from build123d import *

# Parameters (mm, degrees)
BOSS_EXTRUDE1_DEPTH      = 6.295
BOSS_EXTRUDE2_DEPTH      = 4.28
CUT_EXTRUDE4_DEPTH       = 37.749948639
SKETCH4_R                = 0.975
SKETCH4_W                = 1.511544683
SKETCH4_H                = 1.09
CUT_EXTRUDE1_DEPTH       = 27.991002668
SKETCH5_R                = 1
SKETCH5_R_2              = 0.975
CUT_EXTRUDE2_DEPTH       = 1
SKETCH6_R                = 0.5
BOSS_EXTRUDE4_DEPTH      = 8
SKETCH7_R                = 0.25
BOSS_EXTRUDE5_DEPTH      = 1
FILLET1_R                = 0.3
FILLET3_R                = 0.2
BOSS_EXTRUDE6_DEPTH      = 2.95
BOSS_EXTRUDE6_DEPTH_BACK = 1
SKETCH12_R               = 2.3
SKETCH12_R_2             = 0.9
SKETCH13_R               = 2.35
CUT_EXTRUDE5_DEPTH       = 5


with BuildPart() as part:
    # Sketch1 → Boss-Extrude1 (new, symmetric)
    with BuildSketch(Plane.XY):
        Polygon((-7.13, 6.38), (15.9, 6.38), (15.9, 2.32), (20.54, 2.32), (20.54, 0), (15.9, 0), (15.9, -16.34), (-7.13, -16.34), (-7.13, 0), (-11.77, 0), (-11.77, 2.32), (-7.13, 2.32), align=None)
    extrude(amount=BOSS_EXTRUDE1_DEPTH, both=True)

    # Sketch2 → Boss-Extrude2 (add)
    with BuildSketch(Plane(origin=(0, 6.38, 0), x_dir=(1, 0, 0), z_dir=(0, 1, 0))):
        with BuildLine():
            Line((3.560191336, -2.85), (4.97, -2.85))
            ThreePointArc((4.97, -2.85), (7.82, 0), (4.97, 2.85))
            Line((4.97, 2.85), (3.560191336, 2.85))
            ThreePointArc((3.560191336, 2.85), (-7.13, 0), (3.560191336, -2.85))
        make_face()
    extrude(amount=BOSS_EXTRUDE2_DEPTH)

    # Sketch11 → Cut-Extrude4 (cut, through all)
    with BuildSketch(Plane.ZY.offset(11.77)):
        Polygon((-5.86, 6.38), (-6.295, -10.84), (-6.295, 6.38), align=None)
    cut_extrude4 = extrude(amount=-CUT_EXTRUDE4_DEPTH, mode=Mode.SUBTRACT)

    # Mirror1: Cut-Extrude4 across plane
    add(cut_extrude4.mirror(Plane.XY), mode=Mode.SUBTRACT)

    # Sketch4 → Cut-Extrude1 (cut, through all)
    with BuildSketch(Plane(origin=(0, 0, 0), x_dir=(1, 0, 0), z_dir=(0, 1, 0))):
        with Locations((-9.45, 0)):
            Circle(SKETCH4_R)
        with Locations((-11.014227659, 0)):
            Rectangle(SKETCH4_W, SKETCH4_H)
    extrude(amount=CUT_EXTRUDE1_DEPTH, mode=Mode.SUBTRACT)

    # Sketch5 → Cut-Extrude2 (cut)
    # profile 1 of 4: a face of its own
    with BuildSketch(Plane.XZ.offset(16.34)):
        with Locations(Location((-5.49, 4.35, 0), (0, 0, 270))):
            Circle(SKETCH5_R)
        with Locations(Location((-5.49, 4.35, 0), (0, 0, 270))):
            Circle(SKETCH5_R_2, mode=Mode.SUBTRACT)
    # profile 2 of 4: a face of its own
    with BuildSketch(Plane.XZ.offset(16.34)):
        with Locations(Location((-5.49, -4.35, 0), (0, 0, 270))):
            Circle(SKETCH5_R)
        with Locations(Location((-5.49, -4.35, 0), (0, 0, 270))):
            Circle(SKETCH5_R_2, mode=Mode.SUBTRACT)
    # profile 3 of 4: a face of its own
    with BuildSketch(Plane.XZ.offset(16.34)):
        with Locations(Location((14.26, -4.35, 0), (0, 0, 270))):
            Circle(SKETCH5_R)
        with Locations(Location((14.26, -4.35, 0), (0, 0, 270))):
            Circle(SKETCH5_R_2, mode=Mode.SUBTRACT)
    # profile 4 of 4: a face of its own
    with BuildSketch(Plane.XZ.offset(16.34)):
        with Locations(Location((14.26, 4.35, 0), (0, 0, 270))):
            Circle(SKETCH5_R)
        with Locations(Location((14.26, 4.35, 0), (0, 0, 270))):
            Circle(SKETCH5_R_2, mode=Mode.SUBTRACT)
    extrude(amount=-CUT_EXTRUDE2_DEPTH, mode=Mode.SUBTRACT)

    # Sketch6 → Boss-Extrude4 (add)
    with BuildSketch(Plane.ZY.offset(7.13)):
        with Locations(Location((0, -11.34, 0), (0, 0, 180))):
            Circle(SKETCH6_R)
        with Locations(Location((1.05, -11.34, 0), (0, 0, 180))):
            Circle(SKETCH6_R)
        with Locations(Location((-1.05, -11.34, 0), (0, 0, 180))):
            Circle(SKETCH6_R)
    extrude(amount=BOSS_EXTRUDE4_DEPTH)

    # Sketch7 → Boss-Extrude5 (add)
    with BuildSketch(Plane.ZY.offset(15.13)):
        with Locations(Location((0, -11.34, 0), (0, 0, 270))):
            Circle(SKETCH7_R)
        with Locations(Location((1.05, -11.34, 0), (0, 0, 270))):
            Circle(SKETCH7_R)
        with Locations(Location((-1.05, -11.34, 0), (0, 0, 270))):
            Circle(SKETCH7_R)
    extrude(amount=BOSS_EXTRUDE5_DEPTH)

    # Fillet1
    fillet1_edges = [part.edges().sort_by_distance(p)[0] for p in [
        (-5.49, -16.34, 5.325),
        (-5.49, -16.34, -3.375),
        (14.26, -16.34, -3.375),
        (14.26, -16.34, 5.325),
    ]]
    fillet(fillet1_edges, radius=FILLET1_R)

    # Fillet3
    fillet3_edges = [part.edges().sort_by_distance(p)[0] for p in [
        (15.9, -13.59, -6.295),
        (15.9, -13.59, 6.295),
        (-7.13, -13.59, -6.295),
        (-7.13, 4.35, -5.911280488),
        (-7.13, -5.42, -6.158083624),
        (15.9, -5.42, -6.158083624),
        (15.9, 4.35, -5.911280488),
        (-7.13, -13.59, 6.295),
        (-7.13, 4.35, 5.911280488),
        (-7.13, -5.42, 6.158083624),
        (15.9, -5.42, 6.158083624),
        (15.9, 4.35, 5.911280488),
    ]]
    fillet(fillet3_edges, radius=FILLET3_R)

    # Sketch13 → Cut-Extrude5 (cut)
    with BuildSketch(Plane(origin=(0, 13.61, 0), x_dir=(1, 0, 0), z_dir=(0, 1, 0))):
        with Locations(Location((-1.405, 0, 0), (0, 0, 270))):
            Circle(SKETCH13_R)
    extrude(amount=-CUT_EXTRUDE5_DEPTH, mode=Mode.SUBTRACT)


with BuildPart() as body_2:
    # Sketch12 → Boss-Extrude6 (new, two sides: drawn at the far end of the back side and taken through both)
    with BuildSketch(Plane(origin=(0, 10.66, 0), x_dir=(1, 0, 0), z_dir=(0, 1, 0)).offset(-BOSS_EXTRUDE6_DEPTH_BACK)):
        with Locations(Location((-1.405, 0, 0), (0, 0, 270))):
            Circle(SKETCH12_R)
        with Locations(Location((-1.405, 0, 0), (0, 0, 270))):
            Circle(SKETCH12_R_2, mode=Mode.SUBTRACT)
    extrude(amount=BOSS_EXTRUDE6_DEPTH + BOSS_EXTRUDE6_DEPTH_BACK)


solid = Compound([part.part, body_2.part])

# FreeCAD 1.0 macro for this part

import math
import FreeCAD as App
import Part
import Sketcher

V = App.Vector
Q = App.Units.Quantity


def edges_at(feature, points):
    """Names of the edges that pass closest to the given points."""
    edges = feature.Shape.Edges
    near = lambda p: min(range(len(edges)), key=lambda i: edges[i].distToShape(Part.Vertex(*p))[0])
    return sorted({f"Edge{near(p) + 1}" for p in points})


def add_polygon(sketch, points):
    """Adds a closed chain of lines whose ends are joined by coincident constraints."""
    first, n = sketch.GeometryCount, len(points)
    for a, b in zip(points, points[1:] + points[:1]):
        sketch.addGeometry(Part.LineSegment(App.Vector(*a, 0), App.Vector(*b, 0)), False)
    for i in range(n):
        sketch.addConstraint(Sketcher.Constraint("Coincident", first + i, 2, first + (i + 1) % n, 1))

doc = App.newDocument("Part")
body = doc.addObject("PartDesign::Body", "Body")

# Sketch on XY plane
sketch1 = body.newObject("Sketcher::SketchObject", "Sketch")
sketch1.AttachmentSupport = (doc.getObject("XY_Plane"), [""])
sketch1.MapMode = "FlatFace"
add_polygon(sketch1, [(15.9, 6.4), (-7.1, 6.4), (-7.1, 2.3), (-11.8, 2.3), (-11.8, 0), (-7.1, 0), (-7.1, -16.3), (15.9, -16.3), (15.9, 0), (20.5, 0), (20.5, 2.3), (15.9, 2.3)])  # lines 0-11
sketch1.addConstraint(Sketcher.Constraint("Horizontal", 0))
sketch1.addConstraint(Sketcher.Constraint("Vertical", 1))
sketch1.addConstraint(Sketcher.Constraint("Horizontal", 2))
sketch1.addConstraint(Sketcher.Constraint("Vertical", 3))
sketch1.addConstraint(Sketcher.Constraint("Horizontal", 4))
sketch1.addConstraint(Sketcher.Constraint("Vertical", 5))
sketch1.addConstraint(Sketcher.Constraint("Horizontal", 6))
sketch1.addConstraint(Sketcher.Constraint("Vertical", 7))
sketch1.addConstraint(Sketcher.Constraint("Horizontal", 8))
sketch1.addConstraint(Sketcher.Constraint("Vertical", 9))
sketch1.addConstraint(Sketcher.Constraint("Horizontal", 10))
sketch1.addConstraint(Sketcher.Constraint("Vertical", 11))
sketch1.addConstraint(Sketcher.Constraint("PointOnObject", 3, 2, -1))
sketch1.addConstraint(Sketcher.Constraint("PointOnObject", 7, 2, -1))
sketch1.addConstraint(Sketcher.Constraint("Horizontal", 2, 2, 9, 2))
sketch1.addConstraint(Sketcher.Constraint("Vertical", 1, 2, 4, 2))
sketch1.addConstraint(Sketcher.Constraint("Vertical", 7, 2, 10, 2))
sketch1.addConstraint(Sketcher.Constraint("Equal", 4, 8))
sketch1.addConstraint(Sketcher.Constraint("DistanceX", 0, 2, 0, 1, Q("23.03 mm")))
sketch1.addConstraint(Sketcher.Constraint("DistanceX", 2, 2, 2, 1, Q("4.64 mm")))
sketch1.addConstraint(Sketcher.Constraint("DistanceY", 1, 2, 1, 1, Q("4.06 mm")))
sketch1.addConstraint(Sketcher.Constraint("DistanceY", 3, 2, 3, 1, Q("2.32 mm")))
sketch1.addConstraint(Sketcher.Constraint("DistanceY", 5, 2, 5, 1, Q("16.34 mm")))
sketch1.addConstraint(Sketcher.Constraint("DistanceX", -1, 1, 6, 2, Q("15.9 mm")))
pad1 = body.newObject("PartDesign::Pad", "Pad")
pad1.Profile = sketch1
pad1.Length = 12.59
pad1.Midplane = True

# Sketch on XZ plane
sketch2 = body.newObject("Sketcher::SketchObject", "Sketch001")
sketch2.AttachmentSupport = (doc.getObject("XZ_Plane"), [""])
sketch2.MapMode = "FlatFace"
sketch2.AttachmentOffset = App.Placement(V(0, 0, -6.38), App.Rotation())
sketch2.addGeometry(Part.LineSegment(V(3.6, 2.9, 0), V(5, 2.9, 0)), False)
sketch2.addGeometry(Part.ArcOfCircle(Part.Circle(V(5, 0, 0), V(0, 0, 1), 2.9), math.radians(-90), math.radians(90)), False)
sketch2.addGeometry(Part.LineSegment(V(5, -2.9, 0), V(3.6, -2.9, 0)), False)
sketch2.addGeometry(Part.ArcOfCircle(Part.Circle(V(-1.4, 0, 0), V(0, 0, 1), 5.7), math.radians(30), math.radians(330)), False)
sketch2.addConstraint(Sketcher.Constraint("Tangent", 0, 2, 1, 2))
sketch2.addConstraint(Sketcher.Constraint("Tangent", 1, 1, 2, 1))
sketch2.addConstraint(Sketcher.Constraint("Coincident", 2, 2, 3, 2))
sketch2.addConstraint(Sketcher.Constraint("Coincident", 3, 1, 0, 1))
sketch2.addConstraint(Sketcher.Constraint("Horizontal", 0))
sketch2.addConstraint(Sketcher.Constraint("Horizontal", 2))
sketch2.addConstraint(Sketcher.Constraint("Symmetric", 2, 2, 3, 1, -1))
sketch2.addConstraint(Sketcher.Constraint("Radius", 1, Q("2.85 mm")))
sketch2.addConstraint(Sketcher.Constraint("Radius", 3, Q("5.725 mm")))
sketch2.addConstraint(Sketcher.Constraint("DistanceX", -1, 1, 1, 3, Q("4.97 mm")))
sketch2.addConstraint(Sketcher.Constraint("DistanceX", 3, 3, -1, 1, Q("1.405 mm")))
pad2 = body.newObject("PartDesign::Pad", "Pad001")
pad2.Profile = sketch2
pad2.Length = 4.28
pad2.Reversed = True

# Sketch on YZ plane
sketch3 = body.newObject("Sketcher::SketchObject", "Sketch002")
sketch3.AttachmentSupport = (doc.getObject("YZ_Plane"), [""])
sketch3.MapMode = "FlatFace"
sketch3.AttachmentOffset = App.Placement(V(0, 0, -11.77), App.Rotation())
add_polygon(sketch3, [(-10.84, -6.29), (6.38, -5.86), (6.38, -6.29)])  # lines 0-2
sketch3.addConstraint(Sketcher.Constraint("Vertical", 1))
sketch3.addConstraint(Sketcher.Constraint("Horizontal", 2))
sketch3.addConstraint(Sketcher.Constraint("DistanceX", 2, 2, 2, 1, Q("17.22 mm")))
sketch3.addConstraint(Sketcher.Constraint("DistanceY", 1, 2, 1, 1, Q("0.435 mm")))
sketch3.addConstraint(Sketcher.Constraint("DistanceX", -1, 1, 0, 2, Q("6.38 mm")))
sketch3.addConstraint(Sketcher.Constraint("DistanceY", 0, 2, -1, 1, Q("5.86 mm")))
pocket1 = body.newObject("PartDesign::Pocket", "Pocket")
pocket1.Profile = sketch3
pocket1.Type = "ThroughAll"
pocket1.Reversed = True
doc.recompute()

mirrored = body.newObject("PartDesign::Mirrored", "Mirrored")
mirrored.Originals = [pocket1]
mirrored.MirrorPlane = (doc.getObject("XY_Plane"), [""])
body.Tip = mirrored

# Sketch on XZ plane
sketch4 = body.newObject("Sketcher::SketchObject", "Sketch003")
sketch4.AttachmentSupport = (doc.getObject("XZ_Plane"), [""])
sketch4.MapMode = "FlatFace"
sketch4.addGeometry(Part.ArcOfCircle(Part.Circle(V(-9.4, 0, 0), V(0, 0, 1), 1), math.radians(-146), math.radians(146)), False)
sketch4.addGeometry(Part.LineSegment(V(-10.3, -0.5, 0), V(-11.8, -0.5, 0)), False)
sketch4.addGeometry(Part.LineSegment(V(-11.8, -0.5, 0), V(-11.8, 0.5, 0)), False)
sketch4.addGeometry(Part.LineSegment(V(-11.8, 0.5, 0), V(-10.3, 0.5, 0)), False)
sketch4.addConstraint(Sketcher.Constraint("Coincident", 0, 1, 1, 1))
sketch4.addConstraint(Sketcher.Constraint("Coincident", 1, 2, 2, 1))
sketch4.addConstraint(Sketcher.Constraint("Coincident", 2, 2, 3, 1))
sketch4.addConstraint(Sketcher.Constraint("Coincident", 3, 2, 0, 2))
sketch4.addConstraint(Sketcher.Constraint("Horizontal", 1))
sketch4.addConstraint(Sketcher.Constraint("Vertical", 2))
sketch4.addConstraint(Sketcher.Constraint("Horizontal", 3))
sketch4.addConstraint(Sketcher.Constraint("Symmetric", 0, 1, 3, 2, -1))
sketch4.addConstraint(Sketcher.Constraint("Radius", 0, Q("0.975 mm")))
sketch4.addConstraint(Sketcher.Constraint("DistanceY", 2, 1, 2, 2, Q("1.09 mm")))
sketch4.addConstraint(Sketcher.Constraint("DistanceX", 0, 3, -1, 1, Q("9.45 mm")))
sketch4.addConstraint(Sketcher.Constraint("DistanceX", 1, 2, -1, 1, Q("11.77 mm")))
pocket2 = body.newObject("PartDesign::Pocket", "Pocket001")
pocket2.Profile = sketch4
pocket2.Type = "ThroughAll"

# Sketch on XZ plane
sketch5 = body.newObject("Sketcher::SketchObject", "Sketch004")
sketch5.AttachmentSupport = (doc.getObject("XZ_Plane"), [""])
sketch5.MapMode = "FlatFace"
sketch5.AttachmentOffset = App.Placement(V(0, 0, 16.34), App.Rotation())
sketch5.addGeometry(Part.Circle(V(-5.5, 4.3, 0), V(0, 0, 1), 1), False)
sketch5.addGeometry(Part.Circle(V(-5.5, 4.3, 0), V(0, 0, 1), 1), False)
sketch5.addGeometry(Part.Circle(V(-5.5, -4.3, 0), V(0, 0, 1), 1), False)
sketch5.addGeometry(Part.Circle(V(-5.5, -4.3, 0), V(0, 0, 1), 1), False)
sketch5.addGeometry(Part.Circle(V(14.3, -4.3, 0), V(0, 0, 1), 1), False)
sketch5.addGeometry(Part.Circle(V(14.3, -4.3, 0), V(0, 0, 1), 1), False)
sketch5.addGeometry(Part.Circle(V(14.3, 4.3, 0), V(0, 0, 1), 1), False)
sketch5.addGeometry(Part.Circle(V(14.3, 4.3, 0), V(0, 0, 1), 1), False)
sketch5.addConstraint(Sketcher.Constraint("Coincident", 1, 3, 0, 3))
sketch5.addConstraint(Sketcher.Constraint("Coincident", 3, 3, 2, 3))
sketch5.addConstraint(Sketcher.Constraint("Coincident", 5, 3, 4, 3))
sketch5.addConstraint(Sketcher.Constraint("Coincident", 7, 3, 6, 3))
sketch5.addConstraint(Sketcher.Constraint("Equal", 0, 2))
sketch5.addConstraint(Sketcher.Constraint("Equal", 1, 3))
sketch5.addConstraint(Sketcher.Constraint("Equal", 2, 4))
sketch5.addConstraint(Sketcher.Constraint("Equal", 3, 5))
sketch5.addConstraint(Sketcher.Constraint("Equal", 4, 6))
sketch5.addConstraint(Sketcher.Constraint("Equal", 5, 7))
sketch5.addConstraint(Sketcher.Constraint("Symmetric", 0, 3, 2, 3, -1))
sketch5.addConstraint(Sketcher.Constraint("Symmetric", 4, 3, 6, 3, -1))
sketch5.addConstraint(Sketcher.Constraint("Horizontal", 3, 3, 4, 3))
sketch5.addConstraint(Sketcher.Constraint("Diameter", 0, Q("2 mm")))
sketch5.addConstraint(Sketcher.Constraint("Diameter", 1, Q("1.95 mm")))
sketch5.addConstraint(Sketcher.Constraint("DistanceY", 2, 3, 0, 3, Q("8.7 mm")))
sketch5.addConstraint(Sketcher.Constraint("DistanceX", 0, 3, -1, 1, Q("5.49 mm")))
sketch5.addConstraint(Sketcher.Constraint("DistanceX", -1, 1, 4, 3, Q("14.26 mm")))
pocket3 = body.newObject("PartDesign::Pocket", "Pocket002")
pocket3.Profile = sketch5
pocket3.Length = 1

# Sketch on YZ plane
sketch6 = body.newObject("Sketcher::SketchObject", "Sketch005")
sketch6.AttachmentSupport = (doc.getObject("YZ_Plane"), [""])
sketch6.MapMode = "FlatFace"
sketch6.AttachmentOffset = App.Placement(V(0, 0, -7.13), App.Rotation())
sketch6.addGeometry(Part.Circle(V(-11.3, 0, 0), V(0, 0, 1), 0.5), False)
sketch6.addGeometry(Part.Circle(V(-11.3, 1.1, 0), V(0, 0, 1), 0.5), False)
sketch6.addGeometry(Part.Circle(V(-11.3, -1.1, 0), V(0, 0, 1), 0.5), False)
sketch6.addConstraint(Sketcher.Constraint("Equal", 0, 1))
sketch6.addConstraint(Sketcher.Constraint("Equal", 1, 2))
sketch6.addConstraint(Sketcher.Constraint("Symmetric", 1, 3, 2, 3, -1))
sketch6.addConstraint(Sketcher.Constraint("PointOnObject", 0, 3, -1))
sketch6.addConstraint(Sketcher.Constraint("Vertical", 0, 3, 1, 3))
sketch6.addConstraint(Sketcher.Constraint("Diameter", 0, Q("1 mm")))
sketch6.addConstraint(Sketcher.Constraint("DistanceY", 2, 3, 1, 3, Q("2.1 mm")))
sketch6.addConstraint(Sketcher.Constraint("DistanceX", 0, 3, -1, 1, Q("11.34 mm")))
pad3 = body.newObject("PartDesign::Pad", "Pad002")
pad3.Profile = sketch6
pad3.Length = 8
pad3.Reversed = True

# Sketch on YZ plane
sketch7 = body.newObject("Sketcher::SketchObject", "Sketch006")
sketch7.AttachmentSupport = (doc.getObject("YZ_Plane"), [""])
sketch7.MapMode = "FlatFace"
sketch7.AttachmentOffset = App.Placement(V(0, 0, -15.13), App.Rotation())
sketch7.addGeometry(Part.Circle(V(-11.34, 0, 0), V(0, 0, 1), 0.25), False)
sketch7.addGeometry(Part.Circle(V(-11.34, 1.05, 0), V(0, 0, 1), 0.25), False)
sketch7.addGeometry(Part.Circle(V(-11.34, -1.05, 0), V(0, 0, 1), 0.25), False)
sketch7.addConstraint(Sketcher.Constraint("Equal", 0, 1))
sketch7.addConstraint(Sketcher.Constraint("Equal", 1, 2))
sketch7.addConstraint(Sketcher.Constraint("Symmetric", 1, 3, 2, 3, -1))
sketch7.addConstraint(Sketcher.Constraint("PointOnObject", 0, 3, -1))
sketch7.addConstraint(Sketcher.Constraint("Vertical", 0, 3, 1, 3))
sketch7.addConstraint(Sketcher.Constraint("Diameter", 0, Q("0.5 mm")))
sketch7.addConstraint(Sketcher.Constraint("DistanceY", 2, 3, 1, 3, Q("2.1 mm")))
sketch7.addConstraint(Sketcher.Constraint("DistanceX", 0, 3, -1, 1, Q("11.34 mm")))
pad4 = body.newObject("PartDesign::Pad", "Pad003")
pad4.Profile = sketch7
pad4.Length = 1
pad4.Reversed = True
doc.recompute()

fillet = body.newObject("PartDesign::Fillet", "Fillet")
fillet.Base = (pad4, edges_at(pad4, [
    (-5.49, -16.34, 5.325),
    (-5.49, -16.34, -3.375),
    (14.26, -16.34, -3.375),
    (14.26, -16.34, 5.325),
]))
fillet.Radius = 0.3
doc.recompute()

fillet2 = body.newObject("PartDesign::Fillet", "Fillet001")
fillet2.Base = (fillet, edges_at(fillet, [
    (15.9, -13.59, -6.295),
    (15.9, -13.59, 6.295),
    (-7.13, -13.59, -6.295),
    (-7.13, 4.35, -5.911),
    (-7.13, -5.42, -6.158),
    (15.9, -5.42, -6.158),
    (15.9, 4.35, -5.911),
    (-7.13, -13.59, 6.295),
    (-7.13, 4.35, 5.911),
    (-7.13, -5.42, 6.158),
    (15.9, -5.42, 6.158),
    (15.9, 4.35, 5.911),
]))
fillet2.Radius = 0.2

# Sketch on XZ plane
sketch8 = body.newObject("Sketcher::SketchObject", "Sketch007")
sketch8.AttachmentSupport = (doc.getObject("XZ_Plane"), [""])
sketch8.MapMode = "FlatFace"
sketch8.AttachmentOffset = App.Placement(V(0, 0, -13.61), App.Rotation())
sketch8.addGeometry(Part.Circle(V(-1.4, 0, 0), V(0, 0, 1), 2.4), False)
sketch8.addConstraint(Sketcher.Constraint("PointOnObject", 0, 3, -1))
sketch8.addConstraint(Sketcher.Constraint("Diameter", 0, Q("4.7 mm")))
sketch8.addConstraint(Sketcher.Constraint("DistanceX", 0, 3, -1, 1, Q("1.405 mm")))
pocket4 = body.newObject("PartDesign::Pocket", "Pocket003")
pocket4.Profile = sketch8
pocket4.Length = 5
pocket4.Reversed = True
body2 = doc.addObject("PartDesign::Body", "Body001")

# Sketch on XZ plane
sketch9 = body2.newObject("Sketcher::SketchObject", "Sketch008")
sketch9.AttachmentSupport = (doc.getObject("XZ_Plane001"), [""])
sketch9.MapMode = "FlatFace"
sketch9.AttachmentOffset = App.Placement(V(0, 0, -10.66), App.Rotation())
sketch9.addGeometry(Part.Circle(V(-1.4, 0, 0), V(0, 0, 1), 2.3), False)
sketch9.addGeometry(Part.Circle(V(-1.4, 0, 0), V(0, 0, 1), 0.9), False)
sketch9.addConstraint(Sketcher.Constraint("Coincident", 1, 3, 0, 3))
sketch9.addConstraint(Sketcher.Constraint("PointOnObject", 0, 3, -1))
sketch9.addConstraint(Sketcher.Constraint("Diameter", 0, Q("4.6 mm")))
sketch9.addConstraint(Sketcher.Constraint("Diameter", 1, Q("1.8 mm")))
sketch9.addConstraint(Sketcher.Constraint("DistanceX", 0, 3, -1, 1, Q("1.405 mm")))
pad5 = body2.newObject("PartDesign::Pad", "Pad004")
pad5.Profile = sketch9
pad5.Type = "TwoLengths"
pad5.Length = 2.95
pad5.Length2 = 1
pad5.Reversed = True

doc.recompute()
